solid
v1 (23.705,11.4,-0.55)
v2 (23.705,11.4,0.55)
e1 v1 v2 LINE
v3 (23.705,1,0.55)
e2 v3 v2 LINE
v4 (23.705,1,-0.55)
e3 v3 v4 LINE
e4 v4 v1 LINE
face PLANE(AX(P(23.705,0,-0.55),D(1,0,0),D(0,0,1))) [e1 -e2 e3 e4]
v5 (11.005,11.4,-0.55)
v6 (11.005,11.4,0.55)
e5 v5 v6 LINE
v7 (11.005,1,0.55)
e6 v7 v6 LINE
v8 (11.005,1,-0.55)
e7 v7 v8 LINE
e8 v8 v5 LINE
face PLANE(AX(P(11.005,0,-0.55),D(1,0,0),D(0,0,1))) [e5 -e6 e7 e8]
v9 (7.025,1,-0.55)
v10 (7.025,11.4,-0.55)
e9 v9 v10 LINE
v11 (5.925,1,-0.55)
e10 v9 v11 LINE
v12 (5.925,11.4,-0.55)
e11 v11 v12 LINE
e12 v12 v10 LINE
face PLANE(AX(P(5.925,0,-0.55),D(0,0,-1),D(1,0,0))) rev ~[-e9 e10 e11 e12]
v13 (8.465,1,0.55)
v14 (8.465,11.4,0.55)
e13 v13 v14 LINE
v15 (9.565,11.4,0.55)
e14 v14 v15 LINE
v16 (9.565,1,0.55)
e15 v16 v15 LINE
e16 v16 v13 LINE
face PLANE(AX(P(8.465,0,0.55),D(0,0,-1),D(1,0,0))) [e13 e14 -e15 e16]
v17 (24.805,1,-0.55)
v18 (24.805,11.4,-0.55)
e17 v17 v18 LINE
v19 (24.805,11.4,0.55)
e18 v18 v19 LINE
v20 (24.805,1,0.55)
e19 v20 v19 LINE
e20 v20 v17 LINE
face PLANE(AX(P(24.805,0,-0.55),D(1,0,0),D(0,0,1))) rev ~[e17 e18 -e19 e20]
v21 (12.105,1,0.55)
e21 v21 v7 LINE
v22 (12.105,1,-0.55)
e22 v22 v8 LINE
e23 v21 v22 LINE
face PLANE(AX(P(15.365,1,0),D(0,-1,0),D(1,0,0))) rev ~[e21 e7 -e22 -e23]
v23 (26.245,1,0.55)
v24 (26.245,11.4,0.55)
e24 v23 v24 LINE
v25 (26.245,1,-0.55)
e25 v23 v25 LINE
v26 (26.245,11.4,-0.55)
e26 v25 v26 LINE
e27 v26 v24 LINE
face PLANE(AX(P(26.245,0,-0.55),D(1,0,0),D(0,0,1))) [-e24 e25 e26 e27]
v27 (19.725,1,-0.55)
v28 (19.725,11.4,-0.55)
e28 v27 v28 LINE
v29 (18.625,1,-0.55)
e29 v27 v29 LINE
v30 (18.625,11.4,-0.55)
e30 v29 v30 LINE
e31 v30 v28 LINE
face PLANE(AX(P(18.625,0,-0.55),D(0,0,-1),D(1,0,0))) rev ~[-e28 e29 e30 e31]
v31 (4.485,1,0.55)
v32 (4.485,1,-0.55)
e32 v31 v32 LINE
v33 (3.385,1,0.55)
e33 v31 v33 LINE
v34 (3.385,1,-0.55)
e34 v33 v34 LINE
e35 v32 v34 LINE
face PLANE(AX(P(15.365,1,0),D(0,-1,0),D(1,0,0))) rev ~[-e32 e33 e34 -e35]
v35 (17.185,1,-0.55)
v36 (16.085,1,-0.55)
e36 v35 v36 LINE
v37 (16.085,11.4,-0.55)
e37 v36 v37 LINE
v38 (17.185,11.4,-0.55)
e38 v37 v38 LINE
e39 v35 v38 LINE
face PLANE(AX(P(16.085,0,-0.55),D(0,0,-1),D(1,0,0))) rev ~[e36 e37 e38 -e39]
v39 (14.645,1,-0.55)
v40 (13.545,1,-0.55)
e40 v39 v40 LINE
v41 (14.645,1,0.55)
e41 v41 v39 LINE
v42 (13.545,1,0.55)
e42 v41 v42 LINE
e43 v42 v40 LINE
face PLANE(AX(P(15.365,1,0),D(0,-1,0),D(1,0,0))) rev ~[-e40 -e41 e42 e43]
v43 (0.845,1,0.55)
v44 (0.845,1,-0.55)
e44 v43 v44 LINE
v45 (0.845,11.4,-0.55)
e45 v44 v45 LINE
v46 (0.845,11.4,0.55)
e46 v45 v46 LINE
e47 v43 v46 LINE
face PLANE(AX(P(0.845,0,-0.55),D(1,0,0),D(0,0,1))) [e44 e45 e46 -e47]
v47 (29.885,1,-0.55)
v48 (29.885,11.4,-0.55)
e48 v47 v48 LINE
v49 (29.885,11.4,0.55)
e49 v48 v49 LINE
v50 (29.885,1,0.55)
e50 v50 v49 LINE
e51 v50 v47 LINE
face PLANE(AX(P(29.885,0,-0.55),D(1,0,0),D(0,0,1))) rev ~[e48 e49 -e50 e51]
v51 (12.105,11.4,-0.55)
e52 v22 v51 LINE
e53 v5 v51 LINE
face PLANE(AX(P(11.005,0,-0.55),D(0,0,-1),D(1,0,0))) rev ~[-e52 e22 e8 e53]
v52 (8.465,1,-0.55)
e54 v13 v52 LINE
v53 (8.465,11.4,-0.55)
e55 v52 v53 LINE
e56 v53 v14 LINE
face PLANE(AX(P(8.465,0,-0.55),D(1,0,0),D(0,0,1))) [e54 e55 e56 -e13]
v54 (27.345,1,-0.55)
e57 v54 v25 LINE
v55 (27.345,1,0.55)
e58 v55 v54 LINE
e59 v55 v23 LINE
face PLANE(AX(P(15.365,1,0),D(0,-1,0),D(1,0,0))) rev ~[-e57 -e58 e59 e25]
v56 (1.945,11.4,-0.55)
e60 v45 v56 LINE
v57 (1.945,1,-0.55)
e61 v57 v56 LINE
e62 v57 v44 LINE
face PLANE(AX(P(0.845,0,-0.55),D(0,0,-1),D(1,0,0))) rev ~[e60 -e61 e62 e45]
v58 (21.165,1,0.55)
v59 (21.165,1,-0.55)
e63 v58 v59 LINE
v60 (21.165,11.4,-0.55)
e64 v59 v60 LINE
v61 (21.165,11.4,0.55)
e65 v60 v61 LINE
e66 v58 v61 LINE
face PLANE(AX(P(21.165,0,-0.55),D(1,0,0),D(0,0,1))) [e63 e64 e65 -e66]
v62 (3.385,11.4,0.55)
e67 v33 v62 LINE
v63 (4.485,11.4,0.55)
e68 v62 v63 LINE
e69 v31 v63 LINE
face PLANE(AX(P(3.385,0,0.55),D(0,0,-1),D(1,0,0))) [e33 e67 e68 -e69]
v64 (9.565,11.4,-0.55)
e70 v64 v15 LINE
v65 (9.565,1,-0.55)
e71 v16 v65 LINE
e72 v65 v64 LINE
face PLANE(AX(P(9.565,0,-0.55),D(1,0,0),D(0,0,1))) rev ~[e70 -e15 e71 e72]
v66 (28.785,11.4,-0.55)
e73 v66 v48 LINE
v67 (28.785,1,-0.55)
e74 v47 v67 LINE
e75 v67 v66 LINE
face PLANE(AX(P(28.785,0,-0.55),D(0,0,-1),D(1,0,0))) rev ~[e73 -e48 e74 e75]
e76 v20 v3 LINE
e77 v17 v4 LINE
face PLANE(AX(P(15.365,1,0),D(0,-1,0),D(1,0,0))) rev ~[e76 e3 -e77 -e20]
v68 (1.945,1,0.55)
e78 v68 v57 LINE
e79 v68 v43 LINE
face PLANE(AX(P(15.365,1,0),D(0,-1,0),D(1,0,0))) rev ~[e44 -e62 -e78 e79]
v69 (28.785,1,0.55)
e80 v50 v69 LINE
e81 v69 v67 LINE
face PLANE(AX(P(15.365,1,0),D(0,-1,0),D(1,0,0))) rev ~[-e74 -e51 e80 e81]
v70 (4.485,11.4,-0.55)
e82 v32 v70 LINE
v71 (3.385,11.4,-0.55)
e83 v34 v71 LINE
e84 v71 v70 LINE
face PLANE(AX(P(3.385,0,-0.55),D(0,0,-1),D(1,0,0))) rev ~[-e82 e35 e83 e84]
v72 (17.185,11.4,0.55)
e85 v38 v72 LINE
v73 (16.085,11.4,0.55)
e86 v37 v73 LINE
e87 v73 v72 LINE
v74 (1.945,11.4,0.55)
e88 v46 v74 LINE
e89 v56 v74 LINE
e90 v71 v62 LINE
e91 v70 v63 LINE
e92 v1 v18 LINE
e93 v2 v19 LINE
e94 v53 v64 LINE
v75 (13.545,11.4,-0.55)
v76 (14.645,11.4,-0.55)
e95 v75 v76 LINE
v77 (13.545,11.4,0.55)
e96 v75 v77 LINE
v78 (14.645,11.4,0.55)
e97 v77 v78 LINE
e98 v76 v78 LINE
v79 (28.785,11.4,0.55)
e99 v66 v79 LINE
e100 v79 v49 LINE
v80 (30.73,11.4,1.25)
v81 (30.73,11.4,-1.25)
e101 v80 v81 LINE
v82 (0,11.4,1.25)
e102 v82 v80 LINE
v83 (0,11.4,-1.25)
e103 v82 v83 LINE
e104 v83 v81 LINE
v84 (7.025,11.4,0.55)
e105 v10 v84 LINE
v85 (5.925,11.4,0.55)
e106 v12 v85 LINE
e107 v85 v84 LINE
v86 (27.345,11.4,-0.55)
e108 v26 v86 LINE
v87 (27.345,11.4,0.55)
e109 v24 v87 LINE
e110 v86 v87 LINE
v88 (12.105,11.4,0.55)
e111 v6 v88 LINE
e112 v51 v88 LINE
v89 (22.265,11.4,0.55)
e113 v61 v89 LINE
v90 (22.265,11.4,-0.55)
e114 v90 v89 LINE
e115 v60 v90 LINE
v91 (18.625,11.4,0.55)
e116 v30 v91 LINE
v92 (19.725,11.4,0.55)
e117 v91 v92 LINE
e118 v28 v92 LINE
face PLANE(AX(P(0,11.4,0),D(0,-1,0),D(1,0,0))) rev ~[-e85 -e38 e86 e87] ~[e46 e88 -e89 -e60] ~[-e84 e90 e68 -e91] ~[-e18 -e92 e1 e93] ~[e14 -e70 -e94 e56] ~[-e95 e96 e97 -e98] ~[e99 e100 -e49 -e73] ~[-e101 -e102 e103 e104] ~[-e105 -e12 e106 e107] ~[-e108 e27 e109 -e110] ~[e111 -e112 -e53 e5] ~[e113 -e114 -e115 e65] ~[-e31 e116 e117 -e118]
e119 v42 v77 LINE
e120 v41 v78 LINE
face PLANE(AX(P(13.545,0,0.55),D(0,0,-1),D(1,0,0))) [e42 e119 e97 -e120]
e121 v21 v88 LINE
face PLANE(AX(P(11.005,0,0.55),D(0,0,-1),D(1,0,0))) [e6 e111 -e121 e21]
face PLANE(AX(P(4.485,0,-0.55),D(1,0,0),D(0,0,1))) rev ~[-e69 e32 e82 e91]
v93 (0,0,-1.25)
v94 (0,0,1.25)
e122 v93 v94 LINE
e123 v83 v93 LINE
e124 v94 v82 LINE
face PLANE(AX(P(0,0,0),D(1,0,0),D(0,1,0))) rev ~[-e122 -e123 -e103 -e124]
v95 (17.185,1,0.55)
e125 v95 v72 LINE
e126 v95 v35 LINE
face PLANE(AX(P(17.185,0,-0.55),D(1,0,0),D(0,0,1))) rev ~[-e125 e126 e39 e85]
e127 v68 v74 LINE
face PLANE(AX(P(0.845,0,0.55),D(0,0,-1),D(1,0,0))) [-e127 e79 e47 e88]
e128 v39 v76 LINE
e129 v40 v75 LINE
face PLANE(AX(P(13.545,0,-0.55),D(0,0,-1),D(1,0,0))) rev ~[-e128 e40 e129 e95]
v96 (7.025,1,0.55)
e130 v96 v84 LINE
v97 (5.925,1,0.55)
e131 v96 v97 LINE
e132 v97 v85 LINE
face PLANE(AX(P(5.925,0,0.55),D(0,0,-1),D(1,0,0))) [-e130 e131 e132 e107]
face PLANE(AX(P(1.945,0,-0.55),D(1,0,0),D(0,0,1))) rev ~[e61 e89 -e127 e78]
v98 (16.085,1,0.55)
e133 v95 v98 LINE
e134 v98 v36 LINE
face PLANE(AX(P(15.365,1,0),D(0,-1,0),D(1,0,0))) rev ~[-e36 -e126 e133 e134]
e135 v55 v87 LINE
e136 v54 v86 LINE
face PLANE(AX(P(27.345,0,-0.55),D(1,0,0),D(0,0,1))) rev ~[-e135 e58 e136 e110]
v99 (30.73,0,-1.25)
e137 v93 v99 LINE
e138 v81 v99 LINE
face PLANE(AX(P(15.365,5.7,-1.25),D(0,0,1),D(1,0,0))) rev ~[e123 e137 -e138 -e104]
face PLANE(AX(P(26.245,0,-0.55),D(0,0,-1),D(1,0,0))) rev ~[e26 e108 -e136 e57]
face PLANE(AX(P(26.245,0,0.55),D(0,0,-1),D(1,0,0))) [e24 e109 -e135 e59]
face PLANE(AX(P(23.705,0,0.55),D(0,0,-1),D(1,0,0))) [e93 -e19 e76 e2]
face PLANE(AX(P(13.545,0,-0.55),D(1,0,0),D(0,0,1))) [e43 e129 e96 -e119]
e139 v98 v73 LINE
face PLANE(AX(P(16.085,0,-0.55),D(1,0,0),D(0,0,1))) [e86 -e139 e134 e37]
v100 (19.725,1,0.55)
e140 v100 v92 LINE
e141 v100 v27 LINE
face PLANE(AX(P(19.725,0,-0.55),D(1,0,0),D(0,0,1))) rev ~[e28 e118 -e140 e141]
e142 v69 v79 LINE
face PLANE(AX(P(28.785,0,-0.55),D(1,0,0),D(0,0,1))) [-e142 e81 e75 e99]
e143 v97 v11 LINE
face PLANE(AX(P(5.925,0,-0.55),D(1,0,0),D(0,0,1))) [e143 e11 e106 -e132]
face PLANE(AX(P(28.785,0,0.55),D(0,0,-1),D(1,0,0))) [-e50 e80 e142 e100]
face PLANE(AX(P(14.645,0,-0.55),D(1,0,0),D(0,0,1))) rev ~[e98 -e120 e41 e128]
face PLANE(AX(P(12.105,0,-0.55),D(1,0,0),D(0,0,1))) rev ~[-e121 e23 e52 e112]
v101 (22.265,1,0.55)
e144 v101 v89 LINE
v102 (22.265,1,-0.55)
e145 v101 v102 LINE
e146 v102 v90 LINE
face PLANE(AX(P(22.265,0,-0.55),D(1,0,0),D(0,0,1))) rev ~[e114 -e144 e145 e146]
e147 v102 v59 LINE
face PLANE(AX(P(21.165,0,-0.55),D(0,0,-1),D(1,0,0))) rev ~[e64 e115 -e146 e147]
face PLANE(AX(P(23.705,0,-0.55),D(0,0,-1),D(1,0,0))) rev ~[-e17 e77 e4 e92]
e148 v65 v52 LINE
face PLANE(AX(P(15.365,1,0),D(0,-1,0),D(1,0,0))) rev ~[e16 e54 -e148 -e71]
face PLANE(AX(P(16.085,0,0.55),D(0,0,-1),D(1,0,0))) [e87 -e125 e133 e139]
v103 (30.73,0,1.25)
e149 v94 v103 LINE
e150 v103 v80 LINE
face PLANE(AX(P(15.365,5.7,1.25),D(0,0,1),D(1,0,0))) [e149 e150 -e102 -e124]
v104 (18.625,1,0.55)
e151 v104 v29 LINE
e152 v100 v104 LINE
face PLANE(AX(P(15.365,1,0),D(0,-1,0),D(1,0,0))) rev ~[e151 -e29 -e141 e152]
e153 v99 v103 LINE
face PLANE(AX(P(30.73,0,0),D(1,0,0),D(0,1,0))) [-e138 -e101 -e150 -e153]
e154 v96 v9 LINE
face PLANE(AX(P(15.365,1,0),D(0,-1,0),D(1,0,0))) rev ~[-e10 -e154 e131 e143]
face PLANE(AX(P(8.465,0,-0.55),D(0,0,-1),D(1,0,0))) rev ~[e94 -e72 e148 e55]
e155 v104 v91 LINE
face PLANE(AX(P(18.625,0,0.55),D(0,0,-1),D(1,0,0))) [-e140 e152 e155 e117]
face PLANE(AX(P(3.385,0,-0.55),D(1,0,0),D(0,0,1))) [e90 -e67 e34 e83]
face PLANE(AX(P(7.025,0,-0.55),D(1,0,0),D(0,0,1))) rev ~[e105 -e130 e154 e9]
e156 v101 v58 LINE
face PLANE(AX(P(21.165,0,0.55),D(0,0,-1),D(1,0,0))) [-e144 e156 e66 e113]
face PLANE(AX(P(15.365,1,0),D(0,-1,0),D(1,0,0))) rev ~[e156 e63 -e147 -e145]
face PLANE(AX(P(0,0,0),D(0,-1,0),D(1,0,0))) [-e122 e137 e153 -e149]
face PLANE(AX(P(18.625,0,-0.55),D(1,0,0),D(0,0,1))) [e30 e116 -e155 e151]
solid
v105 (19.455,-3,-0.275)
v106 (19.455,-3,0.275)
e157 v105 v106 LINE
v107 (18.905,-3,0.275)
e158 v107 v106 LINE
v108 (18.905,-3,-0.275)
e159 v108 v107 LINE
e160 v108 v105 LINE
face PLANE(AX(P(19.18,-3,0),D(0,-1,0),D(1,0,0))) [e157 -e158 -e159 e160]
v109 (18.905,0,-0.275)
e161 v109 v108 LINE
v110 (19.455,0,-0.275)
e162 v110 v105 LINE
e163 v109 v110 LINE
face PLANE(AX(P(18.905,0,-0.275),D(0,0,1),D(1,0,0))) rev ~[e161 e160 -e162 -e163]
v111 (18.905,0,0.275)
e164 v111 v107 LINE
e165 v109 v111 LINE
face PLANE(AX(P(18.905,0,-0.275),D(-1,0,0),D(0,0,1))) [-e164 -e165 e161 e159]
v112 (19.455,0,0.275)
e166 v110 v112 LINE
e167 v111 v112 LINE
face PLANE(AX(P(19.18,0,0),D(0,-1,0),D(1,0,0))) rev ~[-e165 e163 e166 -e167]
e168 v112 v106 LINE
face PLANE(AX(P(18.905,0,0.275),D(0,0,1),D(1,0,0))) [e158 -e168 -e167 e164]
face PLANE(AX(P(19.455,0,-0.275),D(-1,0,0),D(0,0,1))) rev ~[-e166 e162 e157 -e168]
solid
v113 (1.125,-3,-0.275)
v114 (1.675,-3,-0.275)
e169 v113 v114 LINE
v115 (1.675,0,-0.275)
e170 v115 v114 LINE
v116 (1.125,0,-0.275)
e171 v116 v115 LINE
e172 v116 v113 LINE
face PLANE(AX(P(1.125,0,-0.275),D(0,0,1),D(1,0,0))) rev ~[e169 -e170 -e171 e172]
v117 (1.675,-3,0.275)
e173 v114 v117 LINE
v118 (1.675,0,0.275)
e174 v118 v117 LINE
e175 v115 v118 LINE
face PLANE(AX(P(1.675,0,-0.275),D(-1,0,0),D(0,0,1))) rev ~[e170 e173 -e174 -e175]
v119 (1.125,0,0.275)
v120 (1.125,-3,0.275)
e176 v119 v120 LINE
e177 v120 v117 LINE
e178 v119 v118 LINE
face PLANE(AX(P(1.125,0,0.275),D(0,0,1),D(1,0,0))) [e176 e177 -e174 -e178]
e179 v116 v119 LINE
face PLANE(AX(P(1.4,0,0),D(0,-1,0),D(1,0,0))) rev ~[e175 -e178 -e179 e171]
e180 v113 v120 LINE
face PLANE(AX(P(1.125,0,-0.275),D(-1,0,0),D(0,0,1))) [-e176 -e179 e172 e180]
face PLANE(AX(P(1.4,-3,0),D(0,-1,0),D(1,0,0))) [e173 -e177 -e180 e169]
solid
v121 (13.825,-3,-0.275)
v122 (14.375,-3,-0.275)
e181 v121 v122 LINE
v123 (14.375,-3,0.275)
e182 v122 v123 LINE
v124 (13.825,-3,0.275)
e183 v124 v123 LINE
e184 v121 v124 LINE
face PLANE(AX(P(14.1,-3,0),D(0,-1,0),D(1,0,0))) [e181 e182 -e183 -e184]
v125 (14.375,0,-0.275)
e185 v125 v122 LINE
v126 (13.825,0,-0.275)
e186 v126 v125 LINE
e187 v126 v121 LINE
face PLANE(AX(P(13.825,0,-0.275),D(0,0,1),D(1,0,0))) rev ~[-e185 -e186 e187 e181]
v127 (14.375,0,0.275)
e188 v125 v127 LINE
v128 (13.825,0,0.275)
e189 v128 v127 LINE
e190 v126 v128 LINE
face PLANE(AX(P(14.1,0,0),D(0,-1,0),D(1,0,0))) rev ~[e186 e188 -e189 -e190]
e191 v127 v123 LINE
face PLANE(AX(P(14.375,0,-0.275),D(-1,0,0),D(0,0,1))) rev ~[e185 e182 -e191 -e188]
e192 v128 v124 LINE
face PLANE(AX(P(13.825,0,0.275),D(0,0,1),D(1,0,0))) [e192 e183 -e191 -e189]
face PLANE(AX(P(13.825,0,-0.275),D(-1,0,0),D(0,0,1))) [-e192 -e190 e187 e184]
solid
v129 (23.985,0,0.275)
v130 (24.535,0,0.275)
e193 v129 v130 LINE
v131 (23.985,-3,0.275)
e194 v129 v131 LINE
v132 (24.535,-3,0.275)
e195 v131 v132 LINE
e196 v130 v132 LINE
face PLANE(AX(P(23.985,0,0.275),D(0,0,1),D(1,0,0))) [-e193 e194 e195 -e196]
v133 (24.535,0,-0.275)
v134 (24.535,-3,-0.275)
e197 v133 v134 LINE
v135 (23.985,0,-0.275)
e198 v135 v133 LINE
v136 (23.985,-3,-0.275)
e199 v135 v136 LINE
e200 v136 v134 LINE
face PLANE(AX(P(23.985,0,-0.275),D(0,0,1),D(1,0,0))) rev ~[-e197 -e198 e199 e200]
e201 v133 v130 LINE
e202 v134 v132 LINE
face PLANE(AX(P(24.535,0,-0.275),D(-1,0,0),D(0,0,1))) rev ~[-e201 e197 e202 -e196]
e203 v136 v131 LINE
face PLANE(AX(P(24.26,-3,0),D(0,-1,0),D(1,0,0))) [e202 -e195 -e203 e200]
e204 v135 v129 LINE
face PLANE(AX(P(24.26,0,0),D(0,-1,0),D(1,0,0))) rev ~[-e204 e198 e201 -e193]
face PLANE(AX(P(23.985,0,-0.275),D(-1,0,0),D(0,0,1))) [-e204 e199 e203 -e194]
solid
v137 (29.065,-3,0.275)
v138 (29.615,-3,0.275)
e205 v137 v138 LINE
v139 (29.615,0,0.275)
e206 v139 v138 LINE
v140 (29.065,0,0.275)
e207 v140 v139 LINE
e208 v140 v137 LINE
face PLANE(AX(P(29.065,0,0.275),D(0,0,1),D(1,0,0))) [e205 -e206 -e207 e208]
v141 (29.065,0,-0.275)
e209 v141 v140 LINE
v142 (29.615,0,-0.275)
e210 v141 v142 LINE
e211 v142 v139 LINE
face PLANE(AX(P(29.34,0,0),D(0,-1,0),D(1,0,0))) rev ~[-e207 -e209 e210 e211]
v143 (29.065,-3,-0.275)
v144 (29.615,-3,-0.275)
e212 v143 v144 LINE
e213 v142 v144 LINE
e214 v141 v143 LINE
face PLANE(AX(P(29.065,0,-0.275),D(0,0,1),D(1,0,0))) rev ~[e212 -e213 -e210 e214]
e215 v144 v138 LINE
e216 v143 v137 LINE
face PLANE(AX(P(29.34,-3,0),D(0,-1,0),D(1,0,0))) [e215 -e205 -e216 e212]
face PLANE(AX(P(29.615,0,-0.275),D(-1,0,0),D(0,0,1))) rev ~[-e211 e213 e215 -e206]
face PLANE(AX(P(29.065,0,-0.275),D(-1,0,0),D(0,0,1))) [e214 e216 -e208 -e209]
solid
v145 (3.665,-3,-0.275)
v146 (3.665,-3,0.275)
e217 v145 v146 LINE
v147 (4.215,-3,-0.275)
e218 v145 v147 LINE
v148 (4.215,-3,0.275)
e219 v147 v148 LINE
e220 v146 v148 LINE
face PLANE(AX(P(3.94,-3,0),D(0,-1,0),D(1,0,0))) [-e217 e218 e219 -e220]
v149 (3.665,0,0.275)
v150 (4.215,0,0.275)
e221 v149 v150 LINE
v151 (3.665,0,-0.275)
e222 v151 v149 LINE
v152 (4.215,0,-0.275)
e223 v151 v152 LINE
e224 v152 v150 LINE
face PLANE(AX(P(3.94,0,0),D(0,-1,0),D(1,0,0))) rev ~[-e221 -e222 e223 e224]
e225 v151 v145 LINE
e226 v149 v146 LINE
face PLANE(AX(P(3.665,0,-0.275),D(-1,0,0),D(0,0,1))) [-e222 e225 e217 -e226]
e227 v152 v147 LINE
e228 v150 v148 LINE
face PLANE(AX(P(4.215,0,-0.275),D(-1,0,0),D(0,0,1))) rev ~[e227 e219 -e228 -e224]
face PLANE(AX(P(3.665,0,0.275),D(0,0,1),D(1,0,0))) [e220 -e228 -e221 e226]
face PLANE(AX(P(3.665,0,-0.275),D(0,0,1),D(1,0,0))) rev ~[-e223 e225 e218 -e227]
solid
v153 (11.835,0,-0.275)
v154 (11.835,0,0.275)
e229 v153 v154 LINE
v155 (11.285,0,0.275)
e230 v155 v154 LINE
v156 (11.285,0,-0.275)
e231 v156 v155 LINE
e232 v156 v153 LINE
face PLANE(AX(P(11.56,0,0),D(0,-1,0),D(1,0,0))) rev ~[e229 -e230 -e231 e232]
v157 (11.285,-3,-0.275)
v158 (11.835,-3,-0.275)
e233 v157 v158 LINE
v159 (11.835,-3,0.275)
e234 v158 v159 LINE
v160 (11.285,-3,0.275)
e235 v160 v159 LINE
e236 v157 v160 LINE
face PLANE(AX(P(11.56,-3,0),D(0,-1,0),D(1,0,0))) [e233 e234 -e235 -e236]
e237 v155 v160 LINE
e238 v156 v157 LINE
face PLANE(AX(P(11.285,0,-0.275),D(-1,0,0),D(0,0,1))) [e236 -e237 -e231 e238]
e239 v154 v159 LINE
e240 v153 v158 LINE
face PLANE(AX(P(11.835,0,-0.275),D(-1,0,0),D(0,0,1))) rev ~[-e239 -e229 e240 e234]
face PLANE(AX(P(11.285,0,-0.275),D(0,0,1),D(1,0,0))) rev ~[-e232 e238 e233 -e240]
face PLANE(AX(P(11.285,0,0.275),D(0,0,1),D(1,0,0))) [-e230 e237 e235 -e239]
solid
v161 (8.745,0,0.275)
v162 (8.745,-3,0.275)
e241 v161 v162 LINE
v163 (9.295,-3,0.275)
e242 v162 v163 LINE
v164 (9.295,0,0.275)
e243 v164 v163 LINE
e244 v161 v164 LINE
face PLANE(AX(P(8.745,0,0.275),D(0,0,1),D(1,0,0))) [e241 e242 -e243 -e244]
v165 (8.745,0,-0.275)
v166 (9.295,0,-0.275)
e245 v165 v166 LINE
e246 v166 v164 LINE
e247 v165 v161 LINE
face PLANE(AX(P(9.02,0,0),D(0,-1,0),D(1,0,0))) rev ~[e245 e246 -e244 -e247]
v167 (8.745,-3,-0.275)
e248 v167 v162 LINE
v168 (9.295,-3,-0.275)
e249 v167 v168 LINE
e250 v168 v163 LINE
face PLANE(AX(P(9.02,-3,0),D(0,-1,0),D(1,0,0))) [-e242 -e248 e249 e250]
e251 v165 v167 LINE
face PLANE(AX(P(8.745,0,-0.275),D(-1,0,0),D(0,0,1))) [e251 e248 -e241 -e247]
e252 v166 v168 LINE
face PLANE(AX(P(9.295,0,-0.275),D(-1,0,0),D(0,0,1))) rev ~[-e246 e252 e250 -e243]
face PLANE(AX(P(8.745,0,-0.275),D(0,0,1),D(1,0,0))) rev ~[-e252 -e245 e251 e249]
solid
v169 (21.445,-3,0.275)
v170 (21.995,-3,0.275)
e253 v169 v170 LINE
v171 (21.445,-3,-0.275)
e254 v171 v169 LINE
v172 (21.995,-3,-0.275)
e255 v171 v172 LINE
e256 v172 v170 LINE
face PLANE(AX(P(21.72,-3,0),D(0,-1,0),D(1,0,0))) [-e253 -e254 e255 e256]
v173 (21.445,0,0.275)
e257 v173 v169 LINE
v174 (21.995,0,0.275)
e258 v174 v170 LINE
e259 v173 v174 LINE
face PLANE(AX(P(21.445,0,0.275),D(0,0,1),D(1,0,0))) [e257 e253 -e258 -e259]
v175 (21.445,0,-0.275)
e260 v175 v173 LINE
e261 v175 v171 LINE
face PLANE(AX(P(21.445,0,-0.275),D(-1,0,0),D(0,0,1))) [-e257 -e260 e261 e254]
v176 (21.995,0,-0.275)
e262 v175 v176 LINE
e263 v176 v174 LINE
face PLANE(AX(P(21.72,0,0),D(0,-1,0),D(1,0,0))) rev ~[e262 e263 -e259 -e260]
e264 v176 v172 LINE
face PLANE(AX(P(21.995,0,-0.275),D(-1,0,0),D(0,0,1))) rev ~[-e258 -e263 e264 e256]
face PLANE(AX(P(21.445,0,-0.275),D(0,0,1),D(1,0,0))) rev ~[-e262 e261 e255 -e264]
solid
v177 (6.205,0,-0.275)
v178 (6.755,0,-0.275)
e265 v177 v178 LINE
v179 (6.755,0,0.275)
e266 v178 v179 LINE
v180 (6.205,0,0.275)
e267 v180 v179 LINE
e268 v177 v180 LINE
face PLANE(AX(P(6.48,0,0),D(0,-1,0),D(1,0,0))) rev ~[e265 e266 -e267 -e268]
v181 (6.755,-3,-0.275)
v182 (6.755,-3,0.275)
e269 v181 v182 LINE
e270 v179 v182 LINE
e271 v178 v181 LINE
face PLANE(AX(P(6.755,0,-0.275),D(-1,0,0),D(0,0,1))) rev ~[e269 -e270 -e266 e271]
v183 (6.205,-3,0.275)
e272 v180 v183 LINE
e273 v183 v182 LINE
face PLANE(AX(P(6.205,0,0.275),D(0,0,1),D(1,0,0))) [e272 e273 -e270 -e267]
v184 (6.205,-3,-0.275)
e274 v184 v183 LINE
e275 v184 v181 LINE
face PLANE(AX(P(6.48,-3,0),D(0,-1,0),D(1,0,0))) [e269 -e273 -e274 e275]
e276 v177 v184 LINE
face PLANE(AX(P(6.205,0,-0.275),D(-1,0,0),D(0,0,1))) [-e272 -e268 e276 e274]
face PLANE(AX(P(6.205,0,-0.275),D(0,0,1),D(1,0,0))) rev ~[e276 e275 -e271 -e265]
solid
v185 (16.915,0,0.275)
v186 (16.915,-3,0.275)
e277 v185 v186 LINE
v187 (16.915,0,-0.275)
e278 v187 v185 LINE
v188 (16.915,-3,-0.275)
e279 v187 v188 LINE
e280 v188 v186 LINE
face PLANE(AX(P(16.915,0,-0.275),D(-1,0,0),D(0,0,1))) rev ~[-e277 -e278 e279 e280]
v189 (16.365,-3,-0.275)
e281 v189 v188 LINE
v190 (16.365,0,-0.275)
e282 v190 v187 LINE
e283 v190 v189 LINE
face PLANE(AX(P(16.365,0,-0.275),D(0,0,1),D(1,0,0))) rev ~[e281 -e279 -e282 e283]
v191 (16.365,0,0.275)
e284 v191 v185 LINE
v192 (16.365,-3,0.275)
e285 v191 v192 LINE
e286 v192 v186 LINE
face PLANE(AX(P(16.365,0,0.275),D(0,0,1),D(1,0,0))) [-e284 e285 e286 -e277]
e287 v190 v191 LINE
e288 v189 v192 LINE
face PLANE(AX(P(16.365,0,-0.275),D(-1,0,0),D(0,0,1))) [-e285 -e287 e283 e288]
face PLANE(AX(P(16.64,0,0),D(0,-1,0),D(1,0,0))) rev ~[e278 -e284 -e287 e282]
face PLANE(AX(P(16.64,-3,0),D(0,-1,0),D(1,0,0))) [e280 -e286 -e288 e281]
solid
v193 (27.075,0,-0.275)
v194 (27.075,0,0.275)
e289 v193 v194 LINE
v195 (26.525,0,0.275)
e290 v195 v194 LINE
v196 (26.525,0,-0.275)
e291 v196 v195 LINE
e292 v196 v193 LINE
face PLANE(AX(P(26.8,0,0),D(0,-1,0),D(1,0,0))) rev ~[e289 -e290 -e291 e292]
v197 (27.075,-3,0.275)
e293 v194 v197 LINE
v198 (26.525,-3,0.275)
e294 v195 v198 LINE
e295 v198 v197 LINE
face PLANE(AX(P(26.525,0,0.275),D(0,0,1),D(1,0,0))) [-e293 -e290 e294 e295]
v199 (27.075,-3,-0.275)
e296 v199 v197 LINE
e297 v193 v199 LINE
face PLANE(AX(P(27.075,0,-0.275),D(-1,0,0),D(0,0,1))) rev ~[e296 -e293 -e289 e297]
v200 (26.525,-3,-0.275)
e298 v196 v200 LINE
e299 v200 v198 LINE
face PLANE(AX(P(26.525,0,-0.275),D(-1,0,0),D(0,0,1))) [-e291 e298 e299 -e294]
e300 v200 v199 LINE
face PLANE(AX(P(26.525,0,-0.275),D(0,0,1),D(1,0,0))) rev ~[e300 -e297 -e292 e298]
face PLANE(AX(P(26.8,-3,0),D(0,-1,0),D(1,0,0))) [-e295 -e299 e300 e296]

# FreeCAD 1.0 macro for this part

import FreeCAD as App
import Part
import Sketcher


def add_polygon(sketch, points):
    """Adds a closed chain of lines whose ends are joined by coincident constraints."""
    first, n = sketch.GeometryCount, len(points)
    for a, b in zip(points, points[1:] + points[:1]):
        sketch.addGeometry(Part.LineSegment(App.Vector(*a, 0), App.Vector(*b, 0)), False)
    for i in range(n):
        sketch.addConstraint(Sketcher.Constraint("Coincident", first + i, 2, first + (i + 1) % n, 1))

doc = App.newDocument("Part")
params = doc.addObject("Spreadsheet::Sheet", "Params")
for row, (alias, value) in enumerate([
    ("sketch1_height", "11.4 mm"),
    ("sketch1_width", "30.73 mm"),
    ("pad1_length", "2.5 mm"),
    ("sketch2_width", "1.1 mm"),
    ("sketch3_height", "2.5 mm"),
    ("sketch3_width", "30.73 mm"),
    ("pad2_length", "1 mm"),
    ("sketch4_width", "0.55 mm"),
    ("pad3_length", "3 mm"),
    ("sketch5_width", "0.55 mm"),
    ("pad4_length", "3 mm"),
    ("sketch6_width", "0.55 mm"),
    ("pad5_length", "3 mm"),
    ("sketch7_width", "0.55 mm"),
    ("pad6_length", "3 mm"),
    ("sketch8_width", "0.55 mm"),
    ("pad7_length", "3 mm"),
    ("sketch9_width", "0.55 mm"),
    ("pad8_length", "3 mm"),
    ("sketch10_width", "0.55 mm"),
    ("pad9_length", "3 mm"),
    ("sketch11_width", "0.55 mm"),
    ("pad10_length", "3 mm"),
    ("sketch12_width", "0.55 mm"),
    ("pad11_length", "3 mm"),
    ("sketch13_width", "0.55 mm"),
    ("pad12_length", "3 mm"),
    ("sketch14_width", "0.55 mm"),
    ("pad13_length", "3 mm"),
    ("sketch15_width", "0.55 mm"),
    ("pad14_length", "3 mm"),
], start=1):
    params.set(f"A{row}", alias)
    params.set(f"B{row}", "=" + value)
    params.setAlias(f"B{row}", alias)

body = doc.addObject("PartDesign::Body", "Body")

sketch1 = doc.addObject("Sketcher::SketchObject", "Sketch")
body.addObject(sketch1)
sketch1.AttachmentSupport = (doc.XY_Plane, [""])
sketch1.MapMode = "FlatFace"
add_polygon(sketch1, [(0, 11), (0, 0), (31, 0), (31, 11)])
sketch1.addConstraint(Sketcher.Constraint("Vertical", 0))
sketch1.addConstraint(Sketcher.Constraint("Horizontal", 1))
sketch1.addConstraint(Sketcher.Constraint("Vertical", 2))
sketch1.addConstraint(Sketcher.Constraint("Horizontal", 3))
sketch1.addConstraint(Sketcher.Constraint("Coincident", 0, 2, -1, 1))
sketch1.addConstraint(Sketcher.Constraint("DistanceY", 0, 2, 0, 1, 11.4))
sketch1.addConstraint(Sketcher.Constraint("DistanceX", 1, 1, 1, 2, 30.73))
sketch1.setExpression("Constraints[9]", "Params.sketch1_height")
sketch1.setExpression("Constraints[10]", "Params.sketch1_width")
pad1 = doc.addObject("PartDesign::Pad", "Pad")
body.addObject(pad1)
pad1.Profile = sketch1
pad1.setExpression("Length", "Params.pad1_length")
pad1.Midplane = True

sketch2 = doc.addObject("Sketcher::SketchObject", "Sketch001")
body.addObject(sketch2)
sketch2.AttachmentSupport = (doc.XZ_Plane, [""])
sketch2.MapMode = "FlatFace"
add_polygon(sketch2, [(3.4, 0.6), (3.4, -0.6), (4.5, -0.6), (4.5, 0.6)])
add_polygon(sketch2, [(0.8, 0.6), (0.8, -0.6), (1.9, -0.6), (1.9, 0.6)])
add_polygon(sketch2, [(5.9, 0.6), (5.9, -0.6), (7, -0.6), (7, 0.6)])
add_polygon(sketch2, [(8.5, 0.6), (8.5, -0.6), (9.6, -0.6), (9.6, 0.6)])
add_polygon(sketch2, [(11, 0.6), (11, -0.6), (12.1, -0.6), (12.1, 0.6)])
add_polygon(sketch2, [(13.5, 0.6), (13.5, -0.6), (14.6, -0.6), (14.6, 0.6)])
add_polygon(sketch2, [(16.1, 0.6), (16.1, -0.6), (17.2, -0.6), (17.2, 0.6)])
add_polygon(sketch2, [(18.6, 0.6), (18.6, -0.6), (19.7, -0.6), (19.7, 0.6)])
add_polygon(sketch2, [(21.2, 0.6), (21.2, -0.6), (22.3, -0.6), (22.3, 0.6)])
add_polygon(sketch2, [(23.7, 0.6), (23.7, -0.6), (24.8, -0.6), (24.8, 0.6)])
add_polygon(sketch2, [(26.2, 0.6), (26.2, -0.6), (27.3, -0.6), (27.3, 0.6)])
add_polygon(sketch2, [(28.8, 0.6), (28.8, -0.6), (29.9, -0.6), (29.9, 0.6)])
sketch2.addConstraint(Sketcher.Constraint("Vertical", 0))
sketch2.addConstraint(Sketcher.Constraint("Horizontal", 1))
sketch2.addConstraint(Sketcher.Constraint("Vertical", 2))
sketch2.addConstraint(Sketcher.Constraint("Horizontal", 3))
sketch2.addConstraint(Sketcher.Constraint("Vertical", 4))
sketch2.addConstraint(Sketcher.Constraint("Horizontal", 5))
sketch2.addConstraint(Sketcher.Constraint("Vertical", 6))
sketch2.addConstraint(Sketcher.Constraint("Horizontal", 7))
sketch2.addConstraint(Sketcher.Constraint("Vertical", 8))
sketch2.addConstraint(Sketcher.Constraint("Horizontal", 9))
sketch2.addConstraint(Sketcher.Constraint("Vertical", 10))
sketch2.addConstraint(Sketcher.Constraint("Horizontal", 11))
sketch2.addConstraint(Sketcher.Constraint("Vertical", 12))
sketch2.addConstraint(Sketcher.Constraint("Horizontal", 13))
sketch2.addConstraint(Sketcher.Constraint("Vertical", 14))
sketch2.addConstraint(Sketcher.Constraint("Horizontal", 15))
sketch2.addConstraint(Sketcher.Constraint("Vertical", 16))
sketch2.addConstraint(Sketcher.Constraint("Horizontal", 17))
sketch2.addConstraint(Sketcher.Constraint("Vertical", 18))
sketch2.addConstraint(Sketcher.Constraint("Horizontal", 19))
sketch2.addConstraint(Sketcher.Constraint("Vertical", 20))
sketch2.addConstraint(Sketcher.Constraint("Horizontal", 21))
sketch2.addConstraint(Sketcher.Constraint("Vertical", 22))
sketch2.addConstraint(Sketcher.Constraint("Horizontal", 23))
sketch2.addConstraint(Sketcher.Constraint("Vertical", 24))
sketch2.addConstraint(Sketcher.Constraint("Horizontal", 25))
sketch2.addConstraint(Sketcher.Constraint("Vertical", 26))
sketch2.addConstraint(Sketcher.Constraint("Horizontal", 27))
sketch2.addConstraint(Sketcher.Constraint("Vertical", 28))
sketch2.addConstraint(Sketcher.Constraint("Horizontal", 29))
sketch2.addConstraint(Sketcher.Constraint("Vertical", 30))
sketch2.addConstraint(Sketcher.Constraint("Horizontal", 31))
sketch2.addConstraint(Sketcher.Constraint("Vertical", 32))
sketch2.addConstraint(Sketcher.Constraint("Horizontal", 33))
sketch2.addConstraint(Sketcher.Constraint("Vertical", 34))
sketch2.addConstraint(Sketcher.Constraint("Horizontal", 35))
sketch2.addConstraint(Sketcher.Constraint("Vertical", 36))
sketch2.addConstraint(Sketcher.Constraint("Horizontal", 37))
sketch2.addConstraint(Sketcher.Constraint("Vertical", 38))
sketch2.addConstraint(Sketcher.Constraint("Horizontal", 39))
sketch2.addConstraint(Sketcher.Constraint("Vertical", 40))
sketch2.addConstraint(Sketcher.Constraint("Horizontal", 41))
sketch2.addConstraint(Sketcher.Constraint("Vertical", 42))
sketch2.addConstraint(Sketcher.Constraint("Horizontal", 43))
sketch2.addConstraint(Sketcher.Constraint("Vertical", 44))
sketch2.addConstraint(Sketcher.Constraint("Horizontal", 45))
sketch2.addConstraint(Sketcher.Constraint("Vertical", 46))
sketch2.addConstraint(Sketcher.Constraint("Horizontal", 47))
sketch2.addConstraint(Sketcher.Constraint("Horizontal", 1, 2, 4, 2))
sketch2.addConstraint(Sketcher.Constraint("Horizontal", 3, 2, 6, 2))
sketch2.addConstraint(Sketcher.Constraint("Horizontal", 5, 2, 8, 2))
sketch2.addConstraint(Sketcher.Constraint("Horizontal", 7, 2, 10, 2))
sketch2.addConstraint(Sketcher.Constraint("Horizontal", 9, 2, 12, 2))
sketch2.addConstraint(Sketcher.Constraint("Horizontal", 11, 2, 14, 2))
sketch2.addConstraint(Sketcher.Constraint("Horizontal", 13, 2, 16, 2))
sketch2.addConstraint(Sketcher.Constraint("Horizontal", 15, 2, 18, 2))
sketch2.addConstraint(Sketcher.Constraint("Horizontal", 17, 2, 20, 2))
sketch2.addConstraint(Sketcher.Constraint("Horizontal", 19, 2, 22, 2))
sketch2.addConstraint(Sketcher.Constraint("Horizontal", 21, 2, 24, 2))
sketch2.addConstraint(Sketcher.Constraint("Horizontal", 23, 2, 26, 2))
sketch2.addConstraint(Sketcher.Constraint("Horizontal", 25, 2, 28, 2))
sketch2.addConstraint(Sketcher.Constraint("Horizontal", 27, 2, 30, 2))
sketch2.addConstraint(Sketcher.Constraint("Horizontal", 29, 2, 32, 2))
sketch2.addConstraint(Sketcher.Constraint("Horizontal", 31, 2, 34, 2))
sketch2.addConstraint(Sketcher.Constraint("Horizontal", 33, 2, 36, 2))
sketch2.addConstraint(Sketcher.Constraint("Horizontal", 35, 2, 38, 2))
sketch2.addConstraint(Sketcher.Constraint("Horizontal", 37, 2, 40, 2))
sketch2.addConstraint(Sketcher.Constraint("Horizontal", 39, 2, 42, 2))
sketch2.addConstraint(Sketcher.Constraint("Horizontal", 41, 2, 44, 2))
sketch2.addConstraint(Sketcher.Constraint("Horizontal", 43, 2, 46, 2))
sketch2.addConstraint(Sketcher.Constraint("Equal", 3, 5))
sketch2.addConstraint(Sketcher.Constraint("Equal", 7, 9))
sketch2.addConstraint(Sketcher.Constraint("Equal", 11, 13))
sketch2.addConstraint(Sketcher.Constraint("Equal", 15, 17))
sketch2.addConstraint(Sketcher.Constraint("Equal", 19, 21))
sketch2.addConstraint(Sketcher.Constraint("Equal", 23, 25))
sketch2.addConstraint(Sketcher.Constraint("Equal", 27, 29))
sketch2.addConstraint(Sketcher.Constraint("Equal", 31, 33))
sketch2.addConstraint(Sketcher.Constraint("Equal", 35, 37))
sketch2.addConstraint(Sketcher.Constraint("Equal", 39, 41))
sketch2.addConstraint(Sketcher.Constraint("Equal", 43, 45))
sketch2.addConstraint(Sketcher.Constraint("Equal", 47, 0))
sketch2.addConstraint(Sketcher.Constraint("DistanceX", 1, 1, 1, 2, 1.1))
sketch2.addConstraint(Sketcher.Constraint("DistanceY", 0, 2, -1, 1, 0.55))
sketch2.addConstraint(Sketcher.Constraint("DistanceX", 4, 2, 0, 2, 2.54))
sketch2.addConstraint(Sketcher.Constraint("DistanceX", 1, 2, 8, 2, 1.44))
sketch2.addConstraint(Sketcher.Constraint("DistanceX", 9, 2, 12, 2, 1.44))
sketch2.addConstraint(Sketcher.Constraint("DistanceX", 13, 2, 16, 2, 1.44))
sketch2.addConstraint(Sketcher.Constraint("DistanceX", 17, 2, 20, 2, 1.44))
sketch2.addConstraint(Sketcher.Constraint("DistanceX", 21, 2, 24, 2, 1.44))
sketch2.addConstraint(Sketcher.Constraint("DistanceX", 25, 2, 28, 2, 1.44))
sketch2.addConstraint(Sketcher.Constraint("DistanceX", 29, 2, 32, 2, 1.44))
sketch2.addConstraint(Sketcher.Constraint("DistanceX", 33, 2, 36, 2, 1.44))
sketch2.addConstraint(Sketcher.Constraint("DistanceX", 37, 2, 40, 2, 1.44))
sketch2.addConstraint(Sketcher.Constraint("DistanceX", 41, 2, 44, 2, 1.44))
sketch2.addConstraint(Sketcher.Constraint("DistanceX", -1, 1, 0, 2, 3.385))
sketch2.setExpression("Constraints[130]", "Params.sketch2_width")
pocket1 = doc.addObject("PartDesign::Pocket", "Pocket")
body.addObject(pocket1)
pocket1.Profile = sketch2
pocket1.Type = "ThroughAll"

sketch3 = doc.addObject("Sketcher::SketchObject", "Sketch002")
body.addObject(sketch3)
sketch3.AttachmentSupport = (doc.XZ_Plane, [""])
sketch3.MapMode = "FlatFace"
add_polygon(sketch3, [(0, 1.2), (0, -1.2), (30.7, -1.2), (30.7, 1.2)])
sketch3.addConstraint(Sketcher.Constraint("Vertical", 0))
sketch3.addConstraint(Sketcher.Constraint("Horizontal", 1))
sketch3.addConstraint(Sketcher.Constraint("Vertical", 2))
sketch3.addConstraint(Sketcher.Constraint("Horizontal", 3))
sketch3.addConstraint(Sketcher.Constraint("Symmetric", 0, 2, 3, 2, -1, 1))
sketch3.addConstraint(Sketcher.Constraint("DistanceY", 0, 2, 0, 1, 2.5))
sketch3.addConstraint(Sketcher.Constraint("DistanceX", 1, 1, 1, 2, 30.73))
sketch3.setExpression("Constraints[9]", "Params.sketch3_height")
sketch3.setExpression("Constraints[10]", "Params.sketch3_width")
pad2 = doc.addObject("PartDesign::Pad", "Pad001")
body.addObject(pad2)
pad2.Profile = sketch3
pad2.setExpression("Length", "Params.pad2_length")
pad2.Reversed = True
body2 = doc.addObject("PartDesign::Body", "Body001")

sketch4 = doc.addObject("Sketcher::SketchObject", "Sketch003")
body2.addObject(sketch4)
sketch4.AttachmentSupport = (doc.getObject("XZ_Plane001"), [""])
sketch4.MapMode = "FlatFace"
add_polygon(sketch4, [(1.1, 0.3), (1.1, -0.3), (1.7, -0.3), (1.7, 0.3)])
sketch4.addConstraint(Sketcher.Constraint("Vertical", 0))
sketch4.addConstraint(Sketcher.Constraint("Horizontal", 1))
sketch4.addConstraint(Sketcher.Constraint("Vertical", 2))
sketch4.addConstraint(Sketcher.Constraint("Horizontal", 3))
sketch4.addConstraint(Sketcher.Constraint("Equal", 3, 0))
sketch4.addConstraint(Sketcher.Constraint("DistanceX", 1, 1, 1, 2, 0.55))
sketch4.addConstraint(Sketcher.Constraint("DistanceX", -1, 1, 0, 2, 1.125))
sketch4.addConstraint(Sketcher.Constraint("DistanceY", 0, 2, -1, 1, 0.275))
sketch4.setExpression("Constraints[9]", "Params.sketch4_width")
pad3 = doc.addObject("PartDesign::Pad", "Pad002")
body2.addObject(pad3)
pad3.Profile = sketch4
pad3.setExpression("Length", "Params.pad3_length")
body3 = doc.addObject("PartDesign::Body", "Body002")

sketch5 = doc.addObject("Sketcher::SketchObject", "Sketch004")
body3.addObject(sketch5)
sketch5.AttachmentSupport = (doc.getObject("XZ_Plane002"), [""])
sketch5.MapMode = "FlatFace"
add_polygon(sketch5, [(3.7, 0.3), (3.7, -0.3), (4.2, -0.3), (4.2, 0.3)])
sketch5.addConstraint(Sketcher.Constraint("Vertical", 0))
sketch5.addConstraint(Sketcher.Constraint("Horizontal", 1))
sketch5.addConstraint(Sketcher.Constraint("Vertical", 2))
sketch5.addConstraint(Sketcher.Constraint("Horizontal", 3))
sketch5.addConstraint(Sketcher.Constraint("Equal", 3, 0))
sketch5.addConstraint(Sketcher.Constraint("DistanceX", 1, 1, 1, 2, 0.55))
sketch5.addConstraint(Sketcher.Constraint("DistanceX", -1, 1, 0, 2, 3.665))
sketch5.addConstraint(Sketcher.Constraint("DistanceY", 0, 2, -1, 1, 0.275))
sketch5.setExpression("Constraints[9]", "Params.sketch5_width")
pad4 = doc.addObject("PartDesign::Pad", "Pad003")
body3.addObject(pad4)
pad4.Profile = sketch5
pad4.setExpression("Length", "Params.pad4_length")
body4 = doc.addObject("PartDesign::Body", "Body003")

sketch6 = doc.addObject("Sketcher::SketchObject", "Sketch005")
body4.addObject(sketch6)
sketch6.AttachmentSupport = (doc.getObject("XZ_Plane003"), [""])
sketch6.MapMode = "FlatFace"
add_polygon(sketch6, [(6.2, 0.3), (6.2, -0.3), (6.8, -0.3), (6.8, 0.3)])
sketch6.addConstraint(Sketcher.Constraint("Vertical", 0))
sketch6.addConstraint(Sketcher.Constraint("Horizontal", 1))
sketch6.addConstraint(Sketcher.Constraint("Vertical", 2))
sketch6.addConstraint(Sketcher.Constraint("Horizontal", 3))
sketch6.addConstraint(Sketcher.Constraint("Equal", 3, 0))
sketch6.addConstraint(Sketcher.Constraint("DistanceX", 1, 1, 1, 2, 0.55))
sketch6.addConstraint(Sketcher.Constraint("DistanceX", -1, 1, 0, 2, 6.205))
sketch6.addConstraint(Sketcher.Constraint("DistanceY", 0, 2, -1, 1, 0.275))
sketch6.setExpression("Constraints[9]", "Params.sketch6_width")
pad5 = doc.addObject("PartDesign::Pad", "Pad004")
body4.addObject(pad5)
pad5.Profile = sketch6
pad5.setExpression("Length", "Params.pad5_length")
body5 = doc.addObject("PartDesign::Body", "Body004")

sketch7 = doc.addObject("Sketcher::SketchObject", "Sketch006")
body5.addObject(sketch7)
sketch7.AttachmentSupport = (doc.getObject("XZ_Plane004"), [""])
sketch7.MapMode = "FlatFace"
add_polygon(sketch7, [(8.7, 0.3), (8.7, -0.3), (9.3, -0.3), (9.3, 0.3)])
sketch7.addConstraint(Sketcher.Constraint("Vertical", 0))
sketch7.addConstraint(Sketcher.Constraint("Horizontal", 1))
sketch7.addConstraint(Sketcher.Constraint("Vertical", 2))
sketch7.addConstraint(Sketcher.Constraint("Horizontal", 3))
sketch7.addConstraint(Sketcher.Constraint("Equal", 3, 0))
sketch7.addConstraint(Sketcher.Constraint("DistanceX", 1, 1, 1, 2, 0.55))
sketch7.addConstraint(Sketcher.Constraint("DistanceX", -1, 1, 0, 2, 8.745))
sketch7.addConstraint(Sketcher.Constraint("DistanceY", 0, 2, -1, 1, 0.275))
sketch7.setExpression("Constraints[9]", "Params.sketch7_width")
pad6 = doc.addObject("PartDesign::Pad", "Pad005")
body5.addObject(pad6)
pad6.Profile = sketch7
pad6.setExpression("Length", "Params.pad6_length")
body6 = doc.addObject("PartDesign::Body", "Body005")

sketch8 = doc.addObject("Sketcher::SketchObject", "Sketch007")
body6.addObject(sketch8)
sketch8.AttachmentSupport = (doc.getObject("XZ_Plane005"), [""])
sketch8.MapMode = "FlatFace"
add_polygon(sketch8, [(11.3, 0.3), (11.3, -0.3), (11.8, -0.3), (11.8, 0.3)])
sketch8.addConstraint(Sketcher.Constraint("Vertical", 0))
sketch8.addConstraint(Sketcher.Constraint("Horizontal", 1))
sketch8.addConstraint(Sketcher.Constraint("Vertical", 2))
sketch8.addConstraint(Sketcher.Constraint("Horizontal", 3))
sketch8.addConstraint(Sketcher.Constraint("Equal", 3, 0))
sketch8.addConstraint(Sketcher.Constraint("DistanceX", 1, 1, 1, 2, 0.55))
sketch8.addConstraint(Sketcher.Constraint("DistanceX", -1, 1, 0, 2, 11.285))
sketch8.addConstraint(Sketcher.Constraint("DistanceY", 0, 2, -1, 1, 0.275))
sketch8.setExpression("Constraints[9]", "Params.sketch8_width")
pad7 = doc.addObject("PartDesign::Pad", "Pad006")
body6.addObject(pad7)
pad7.Profile = sketch8
pad7.setExpression("Length", "Params.pad7_length")
body7 = doc.addObject("PartDesign::Body", "Body006")

sketch9 = doc.addObject("Sketcher::SketchObject", "Sketch008")
body7.addObject(sketch9)
sketch9.AttachmentSupport = (doc.getObject("XZ_Plane006"), [""])
sketch9.MapMode = "FlatFace"
add_polygon(sketch9, [(13.8, 0.3), (13.8, -0.3), (14.4, -0.3), (14.4, 0.3)])
sketch9.addConstraint(Sketcher.Constraint("Vertical", 0))
sketch9.addConstraint(Sketcher.Constraint("Horizontal", 1))
sketch9.addConstraint(Sketcher.Constraint("Vertical", 2))
sketch9.addConstraint(Sketcher.Constraint("Horizontal", 3))
sketch9.addConstraint(Sketcher.Constraint("Equal", 3, 0))
sketch9.addConstraint(Sketcher.Constraint("DistanceX", 1, 1, 1, 2, 0.55))
sketch9.addConstraint(Sketcher.Constraint("DistanceX", -1, 1, 0, 2, 13.825))
sketch9.addConstraint(Sketcher.Constraint("DistanceY", 0, 2, -1, 1, 0.275))
sketch9.setExpression("Constraints[9]", "Params.sketch9_width")
pad8 = doc.addObject("PartDesign::Pad", "Pad007")
body7.addObject(pad8)
pad8.Profile = sketch9
pad8.setExpression("Length", "Params.pad8_length")
body8 = doc.addObject("PartDesign::Body", "Body007")

sketch10 = doc.addObject("Sketcher::SketchObject", "Sketch009")
body8.addObject(sketch10)
sketch10.AttachmentSupport = (doc.getObject("XZ_Plane007"), [""])
sketch10.MapMode = "FlatFace"
add_polygon(sketch10, [(16.4, 0.3), (16.4, -0.3), (16.9, -0.3), (16.9, 0.3)])
sketch10.addConstraint(Sketcher.Constraint("Vertical", 0))
sketch10.addConstraint(Sketcher.Constraint("Horizontal", 1))
sketch10.addConstraint(Sketcher.Constraint("Vertical", 2))
sketch10.addConstraint(Sketcher.Constraint("Horizontal", 3))
sketch10.addConstraint(Sketcher.Constraint("Equal", 3, 0))
sketch10.addConstraint(Sketcher.Constraint("DistanceX", 1, 1, 1, 2, 0.55))
sketch10.addConstraint(Sketcher.Constraint("DistanceX", -1, 1, 0, 2, 16.365))
sketch10.addConstraint(Sketcher.Constraint("DistanceY", 0, 2, -1, 1, 0.275))
sketch10.setExpression("Constraints[9]", "Params.sketch10_width")
pad9 = doc.addObject("PartDesign::Pad", "Pad008")
body8.addObject(pad9)
pad9.Profile = sketch10
pad9.setExpression("Length", "Params.pad9_length")
body9 = doc.addObject("PartDesign::Body", "Body008")

sketch11 = doc.addObject("Sketcher::SketchObject", "Sketch010")
body9.addObject(sketch11)
sketch11.AttachmentSupport = (doc.getObject("XZ_Plane008"), [""])
sketch11.MapMode = "FlatFace"
add_polygon(sketch11, [(18.9, 0.3), (18.9, -0.3), (19.5, -0.3), (19.5, 0.3)])
sketch11.addConstraint(Sketcher.Constraint("Vertical", 0))
sketch11.addConstraint(Sketcher.Constraint("Horizontal", 1))
sketch11.addConstraint(Sketcher.Constraint("Vertical", 2))
sketch11.addConstraint(Sketcher.Constraint("Horizontal", 3))
sketch11.addConstraint(Sketcher.Constraint("Equal", 3, 0))
sketch11.addConstraint(Sketcher.Constraint("DistanceX", 1, 1, 1, 2, 0.55))
sketch11.addConstraint(Sketcher.Constraint("DistanceX", -1, 1, 0, 2, 18.905))
sketch11.addConstraint(Sketcher.Constraint("DistanceY", 0, 2, -1, 1, 0.275))
sketch11.setExpression("Constraints[9]", "Params.sketch11_width")
pad10 = doc.addObject("PartDesign::Pad", "Pad009")
body9.addObject(pad10)
pad10.Profile = sketch11
pad10.setExpression("Length", "Params.pad10_length")
body10 = doc.addObject("PartDesign::Body", "Body009")

sketch12 = doc.addObject("Sketcher::SketchObject", "Sketch011")
body10.addObject(sketch12)
sketch12.AttachmentSupport = (doc.getObject("XZ_Plane009"), [""])
sketch12.MapMode = "FlatFace"
add_polygon(sketch12, [(21.4, 0.3), (21.4, -0.3), (22, -0.3), (22, 0.3)])
sketch12.addConstraint(Sketcher.Constraint("Vertical", 0))
sketch12.addConstraint(Sketcher.Constraint("Horizontal", 1))
sketch12.addConstraint(Sketcher.Constraint("Vertical", 2))
sketch12.addConstraint(Sketcher.Constraint("Horizontal", 3))
sketch12.addConstraint(Sketcher.Constraint("Equal", 3, 0))
sketch12.addConstraint(Sketcher.Constraint("DistanceX", 1, 1, 1, 2, 0.55))
sketch12.addConstraint(Sketcher.Constraint("DistanceX", -1, 1, 0, 2, 21.445))
sketch12.addConstraint(Sketcher.Constraint("DistanceY", 0, 2, -1, 1, 0.275))
sketch12.setExpression("Constraints[9]", "Params.sketch12_width")
pad11 = doc.addObject("PartDesign::Pad", "Pad010")
body10.addObject(pad11)
pad11.Profile = sketch12
pad11.setExpression("Length", "Params.pad11_length")
body11 = doc.addObject("PartDesign::Body", "Body010")

sketch13 = doc.addObject("Sketcher::SketchObject", "Sketch012")
body11.addObject(sketch13)
sketch13.AttachmentSupport = (doc.getObject("XZ_Plane010"), [""])
sketch13.MapMode = "FlatFace"
add_polygon(sketch13, [(24, 0.3), (24, -0.3), (24.5, -0.3), (24.5, 0.3)])
sketch13.addConstraint(Sketcher.Constraint("Vertical", 0))
sketch13.addConstraint(Sketcher.Constraint("Horizontal", 1))
sketch13.addConstraint(Sketcher.Constraint("Vertical", 2))
sketch13.addConstraint(Sketcher.Constraint("Horizontal", 3))
sketch13.addConstraint(Sketcher.Constraint("Equal", 3, 0))
sketch13.addConstraint(Sketcher.Constraint("DistanceX", 1, 1, 1, 2, 0.55))
sketch13.addConstraint(Sketcher.Constraint("DistanceX", -1, 1, 0, 2, 23.985))
sketch13.addConstraint(Sketcher.Constraint("DistanceY", 0, 2, -1, 1, 0.275))
sketch13.setExpression("Constraints[9]", "Params.sketch13_width")
pad12 = doc.addObject("PartDesign::Pad", "Pad011")
body11.addObject(pad12)
pad12.Profile = sketch13
pad12.setExpression("Length", "Params.pad12_length")
body12 = doc.addObject("PartDesign::Body", "Body011")

sketch14 = doc.addObject("Sketcher::SketchObject", "Sketch013")
body12.addObject(sketch14)
sketch14.AttachmentSupport = (doc.getObject("XZ_Plane011"), [""])
sketch14.MapMode = "FlatFace"
add_polygon(sketch14, [(26.5, 0.3), (26.5, -0.3), (27.1, -0.3), (27.1, 0.3)])
sketch14.addConstraint(Sketcher.Constraint("Vertical", 0))
sketch14.addConstraint(Sketcher.Constraint("Horizontal", 1))
sketch14.addConstraint(Sketcher.Constraint("Vertical", 2))
sketch14.addConstraint(Sketcher.Constraint("Horizontal", 3))
sketch14.addConstraint(Sketcher.Constraint("Equal", 3, 0))
sketch14.addConstraint(Sketcher.Constraint("DistanceX", 1, 1, 1, 2, 0.55))
sketch14.addConstraint(Sketcher.Constraint("DistanceX", -1, 1, 0, 2, 26.525))
sketch14.addConstraint(Sketcher.Constraint("DistanceY", 0, 2, -1, 1, 0.275))
sketch14.setExpression("Constraints[9]", "Params.sketch14_width")
pad13 = doc.addObject("PartDesign::Pad", "Pad012")
body12.addObject(pad13)
pad13.Profile = sketch14
pad13.setExpression("Length", "Params.pad13_length")
body13 = doc.addObject("PartDesign::Body", "Body012")

sketch15 = doc.addObject("Sketcher::SketchObject", "Sketch014")
body13.addObject(sketch15)
sketch15.AttachmentSupport = (doc.getObject("XZ_Plane012"), [""])
sketch15.MapMode = "FlatFace"
add_polygon(sketch15, [(29.1, 0.3), (29.1, -0.3), (29.6, -0.3), (29.6, 0.3)])
sketch15.addConstraint(Sketcher.Constraint("Vertical", 0))
sketch15.addConstraint(Sketcher.Constraint("Horizontal", 1))
sketch15.addConstraint(Sketcher.Constraint("Vertical", 2))
sketch15.addConstraint(Sketcher.Constraint("Horizontal", 3))
sketch15.addConstraint(Sketcher.Constraint("Equal", 3, 0))
sketch15.addConstraint(Sketcher.Constraint("DistanceX", 1, 1, 1, 2, 0.55))
sketch15.addConstraint(Sketcher.Constraint("DistanceX", -1, 1, 0, 2, 29.065))
sketch15.addConstraint(Sketcher.Constraint("DistanceY", 0, 2, -1, 1, 0.275))
sketch15.setExpression("Constraints[9]", "Params.sketch15_width")
pad14 = doc.addObject("PartDesign::Pad", "Pad013")
body13.addObject(pad14)
pad14.Profile = sketch15
pad14.setExpression("Length", "Params.pad14_length")

doc.recompute()
